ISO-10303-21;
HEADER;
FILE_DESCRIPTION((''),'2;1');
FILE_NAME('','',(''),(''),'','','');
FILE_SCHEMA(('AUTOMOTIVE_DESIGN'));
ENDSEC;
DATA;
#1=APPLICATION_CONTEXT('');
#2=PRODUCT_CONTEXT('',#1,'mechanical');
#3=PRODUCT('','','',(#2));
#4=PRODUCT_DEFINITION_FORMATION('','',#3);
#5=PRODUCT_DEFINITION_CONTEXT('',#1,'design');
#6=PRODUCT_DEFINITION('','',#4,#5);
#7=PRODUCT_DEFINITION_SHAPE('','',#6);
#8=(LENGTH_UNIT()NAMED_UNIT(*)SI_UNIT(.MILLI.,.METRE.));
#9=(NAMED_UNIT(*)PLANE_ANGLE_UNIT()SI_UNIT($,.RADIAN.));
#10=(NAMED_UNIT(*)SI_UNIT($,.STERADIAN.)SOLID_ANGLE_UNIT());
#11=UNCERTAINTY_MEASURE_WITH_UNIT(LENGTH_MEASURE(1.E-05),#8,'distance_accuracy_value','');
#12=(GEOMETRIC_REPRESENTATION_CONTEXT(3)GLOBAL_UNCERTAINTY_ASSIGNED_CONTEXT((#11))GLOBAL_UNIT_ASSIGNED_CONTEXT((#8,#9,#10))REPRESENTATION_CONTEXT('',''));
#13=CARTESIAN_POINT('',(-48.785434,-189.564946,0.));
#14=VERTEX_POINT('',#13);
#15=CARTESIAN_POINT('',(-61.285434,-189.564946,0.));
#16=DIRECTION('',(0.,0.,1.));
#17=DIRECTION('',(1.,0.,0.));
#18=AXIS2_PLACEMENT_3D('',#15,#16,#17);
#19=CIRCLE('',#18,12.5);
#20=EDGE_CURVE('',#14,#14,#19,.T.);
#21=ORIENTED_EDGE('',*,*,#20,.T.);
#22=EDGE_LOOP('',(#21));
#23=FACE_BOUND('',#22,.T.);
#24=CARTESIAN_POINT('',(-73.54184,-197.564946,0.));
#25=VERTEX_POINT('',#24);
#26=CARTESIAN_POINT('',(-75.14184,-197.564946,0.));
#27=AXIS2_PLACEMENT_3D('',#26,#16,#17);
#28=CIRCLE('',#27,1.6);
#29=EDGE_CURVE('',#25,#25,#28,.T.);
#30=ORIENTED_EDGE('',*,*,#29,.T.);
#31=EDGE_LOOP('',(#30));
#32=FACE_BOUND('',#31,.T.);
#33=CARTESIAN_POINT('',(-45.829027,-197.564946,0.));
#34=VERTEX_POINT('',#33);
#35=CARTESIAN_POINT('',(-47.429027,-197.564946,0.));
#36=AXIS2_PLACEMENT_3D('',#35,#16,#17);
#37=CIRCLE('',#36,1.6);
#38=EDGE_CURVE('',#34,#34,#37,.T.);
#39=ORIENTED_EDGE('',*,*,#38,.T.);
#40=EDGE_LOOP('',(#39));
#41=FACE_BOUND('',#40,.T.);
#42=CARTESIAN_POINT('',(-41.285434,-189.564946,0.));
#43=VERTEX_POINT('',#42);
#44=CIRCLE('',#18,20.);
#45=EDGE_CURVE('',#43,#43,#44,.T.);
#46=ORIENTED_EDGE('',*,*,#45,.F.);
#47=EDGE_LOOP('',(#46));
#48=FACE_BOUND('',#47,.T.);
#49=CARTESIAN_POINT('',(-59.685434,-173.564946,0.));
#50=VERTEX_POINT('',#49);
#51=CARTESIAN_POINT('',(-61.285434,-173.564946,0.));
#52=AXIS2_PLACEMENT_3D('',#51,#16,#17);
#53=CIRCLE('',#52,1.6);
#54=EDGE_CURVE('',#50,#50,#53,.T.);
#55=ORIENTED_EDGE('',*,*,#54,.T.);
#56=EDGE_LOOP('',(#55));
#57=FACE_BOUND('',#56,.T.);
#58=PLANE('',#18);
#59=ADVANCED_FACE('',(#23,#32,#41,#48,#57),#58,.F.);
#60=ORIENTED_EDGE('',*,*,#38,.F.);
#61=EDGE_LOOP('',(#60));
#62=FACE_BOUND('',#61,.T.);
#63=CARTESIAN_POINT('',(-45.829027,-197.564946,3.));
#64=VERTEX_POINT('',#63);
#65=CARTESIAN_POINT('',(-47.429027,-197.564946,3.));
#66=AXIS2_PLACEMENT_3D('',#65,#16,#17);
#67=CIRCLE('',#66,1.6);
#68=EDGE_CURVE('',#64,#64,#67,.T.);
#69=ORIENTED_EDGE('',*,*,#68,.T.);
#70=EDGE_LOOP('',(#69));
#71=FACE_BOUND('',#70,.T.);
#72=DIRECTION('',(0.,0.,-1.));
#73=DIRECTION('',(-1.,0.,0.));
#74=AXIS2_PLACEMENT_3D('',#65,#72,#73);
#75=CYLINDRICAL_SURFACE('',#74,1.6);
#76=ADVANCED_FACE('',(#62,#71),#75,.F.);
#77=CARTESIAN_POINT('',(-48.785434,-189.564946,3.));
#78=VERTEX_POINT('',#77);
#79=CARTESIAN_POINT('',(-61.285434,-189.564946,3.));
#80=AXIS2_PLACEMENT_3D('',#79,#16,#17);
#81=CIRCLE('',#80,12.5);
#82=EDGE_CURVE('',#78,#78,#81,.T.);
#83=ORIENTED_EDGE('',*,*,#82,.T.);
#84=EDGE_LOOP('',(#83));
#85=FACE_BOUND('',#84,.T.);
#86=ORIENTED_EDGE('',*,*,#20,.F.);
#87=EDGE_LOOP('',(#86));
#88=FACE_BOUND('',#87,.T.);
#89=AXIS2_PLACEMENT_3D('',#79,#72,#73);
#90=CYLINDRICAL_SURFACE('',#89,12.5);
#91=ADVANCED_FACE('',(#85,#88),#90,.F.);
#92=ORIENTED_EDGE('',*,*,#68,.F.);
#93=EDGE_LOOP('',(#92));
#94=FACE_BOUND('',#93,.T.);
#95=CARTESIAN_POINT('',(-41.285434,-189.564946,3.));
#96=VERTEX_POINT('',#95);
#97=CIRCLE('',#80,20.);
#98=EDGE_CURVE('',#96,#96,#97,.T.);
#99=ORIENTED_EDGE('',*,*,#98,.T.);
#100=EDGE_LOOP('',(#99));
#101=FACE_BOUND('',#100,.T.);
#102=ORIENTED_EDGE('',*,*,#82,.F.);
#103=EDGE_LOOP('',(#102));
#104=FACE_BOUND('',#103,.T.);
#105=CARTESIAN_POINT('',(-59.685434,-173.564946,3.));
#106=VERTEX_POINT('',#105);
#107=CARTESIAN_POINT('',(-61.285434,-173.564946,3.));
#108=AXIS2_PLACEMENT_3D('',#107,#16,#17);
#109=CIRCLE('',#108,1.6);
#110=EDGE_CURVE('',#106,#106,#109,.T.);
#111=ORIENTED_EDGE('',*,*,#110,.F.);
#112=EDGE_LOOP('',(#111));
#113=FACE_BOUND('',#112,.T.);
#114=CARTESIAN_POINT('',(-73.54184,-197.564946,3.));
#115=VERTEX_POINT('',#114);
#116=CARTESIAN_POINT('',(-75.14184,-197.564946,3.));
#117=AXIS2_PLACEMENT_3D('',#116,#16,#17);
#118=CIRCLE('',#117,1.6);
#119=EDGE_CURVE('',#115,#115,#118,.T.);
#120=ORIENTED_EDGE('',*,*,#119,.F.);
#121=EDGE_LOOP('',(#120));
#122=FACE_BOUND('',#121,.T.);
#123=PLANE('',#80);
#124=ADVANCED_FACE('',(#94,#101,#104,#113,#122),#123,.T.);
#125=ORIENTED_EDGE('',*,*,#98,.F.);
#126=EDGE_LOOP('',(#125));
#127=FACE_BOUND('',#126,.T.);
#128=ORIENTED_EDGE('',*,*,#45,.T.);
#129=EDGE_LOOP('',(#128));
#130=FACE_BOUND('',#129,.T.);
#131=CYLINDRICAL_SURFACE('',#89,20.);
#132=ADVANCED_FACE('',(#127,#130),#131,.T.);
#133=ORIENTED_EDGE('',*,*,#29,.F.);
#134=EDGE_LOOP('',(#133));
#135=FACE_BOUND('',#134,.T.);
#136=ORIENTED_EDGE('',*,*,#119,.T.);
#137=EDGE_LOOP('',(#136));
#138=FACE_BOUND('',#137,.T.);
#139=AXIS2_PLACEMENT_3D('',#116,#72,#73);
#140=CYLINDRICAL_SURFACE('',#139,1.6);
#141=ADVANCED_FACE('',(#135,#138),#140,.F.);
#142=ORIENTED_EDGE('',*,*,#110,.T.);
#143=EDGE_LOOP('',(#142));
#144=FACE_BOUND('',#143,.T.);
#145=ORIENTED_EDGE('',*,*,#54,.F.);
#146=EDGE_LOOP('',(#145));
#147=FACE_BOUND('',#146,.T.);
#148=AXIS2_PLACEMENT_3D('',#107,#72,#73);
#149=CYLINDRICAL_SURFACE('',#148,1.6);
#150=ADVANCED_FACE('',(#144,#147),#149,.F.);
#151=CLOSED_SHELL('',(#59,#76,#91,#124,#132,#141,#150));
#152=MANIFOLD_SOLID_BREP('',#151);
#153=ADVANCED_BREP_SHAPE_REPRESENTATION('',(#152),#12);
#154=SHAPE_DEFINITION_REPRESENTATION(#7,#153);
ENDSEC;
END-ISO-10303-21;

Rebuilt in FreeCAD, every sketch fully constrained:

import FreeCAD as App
import Part
import Sketcher

V = App.Vector

doc = App.newDocument("Part")
params = doc.addObject("Spreadsheet::Sheet", "Params")
for row, (alias, value) in enumerate([
    ("sketch1_diameter", "40 mm"),
    ("sketch1_diameter2", "25 mm"),
    ("sketch1_diameter3", "3.2 mm"),
    ("pad1_length", "3 mm"),
], start=1):
    params.set(f"A{row}", alias)
    params.set(f"B{row}", "=" + value)
    params.setAlias(f"B{row}", alias)

body = doc.addObject("PartDesign::Body", "Body")

sketch1 = body.newObject("Sketcher::SketchObject", "Sketch")
sketch1.AttachmentSupport = (doc.getObject("XY_Plane"), [""])
sketch1.MapMode = "FlatFace"
sketch1.addGeometry([
    Part.Circle(V(-61.285434, -189.564946, 0), V(0, 0, 1), 20),
    Part.Circle(V(-75.14184, -197.564946, 0), V(0, 0, 1), 1.6),
    Part.Circle(V(-47.429027, -197.564946, 0), V(0, 0, 1), 1.6),
    Part.Circle(V(-61.285434, -189.564946, 0), V(0, 0, 1), 12.5),
    Part.Circle(V(-61.285434, -173.564946, 0), V(0, 0, 1), 1.6),
], False)
sketch1.addConstraint([
    Sketcher.Constraint("Coincident", 3, 3, 0, 3),
    Sketcher.Constraint("Equal", 1, 2),
    Sketcher.Constraint("Equal", 2, 4),
    Sketcher.Constraint("Horizontal", 1, 3, 2, 3),
    Sketcher.Constraint("Vertical", 3, 3, 4, 3),
    Sketcher.Constraint("Diameter", 0, 40.0),
    Sketcher.Constraint("Diameter", 3, 25.0),
    Sketcher.Constraint("Diameter", 1, 3.2),
    Sketcher.Constraint("DistanceY", 1, 3, 0, 3, 8.0),
    Sketcher.Constraint("DistanceY", 0, 3, 4, 3, 16.0),
    Sketcher.Constraint("DistanceX", 1, 3, -1, 1, 75.14184),
    Sketcher.Constraint("DistanceX", 0, 3, -1, 1, 61.285434),
    Sketcher.Constraint("DistanceY", 0, 3, -1, 1, 189.564946),
    Sketcher.Constraint("DistanceX", 2, 3, -1, 1, 47.429027),
])
sketch1.setExpression("Constraints[5]", "Params.sketch1_diameter")
sketch1.setExpression("Constraints[6]", "Params.sketch1_diameter2")
sketch1.setExpression("Constraints[7]", "Params.sketch1_diameter3")
pad1 = body.newObject("PartDesign::Pad", "Pad")
pad1.Profile = sketch1
pad1.setExpression("Length", "Params.pad1_length")

doc.recompute()
